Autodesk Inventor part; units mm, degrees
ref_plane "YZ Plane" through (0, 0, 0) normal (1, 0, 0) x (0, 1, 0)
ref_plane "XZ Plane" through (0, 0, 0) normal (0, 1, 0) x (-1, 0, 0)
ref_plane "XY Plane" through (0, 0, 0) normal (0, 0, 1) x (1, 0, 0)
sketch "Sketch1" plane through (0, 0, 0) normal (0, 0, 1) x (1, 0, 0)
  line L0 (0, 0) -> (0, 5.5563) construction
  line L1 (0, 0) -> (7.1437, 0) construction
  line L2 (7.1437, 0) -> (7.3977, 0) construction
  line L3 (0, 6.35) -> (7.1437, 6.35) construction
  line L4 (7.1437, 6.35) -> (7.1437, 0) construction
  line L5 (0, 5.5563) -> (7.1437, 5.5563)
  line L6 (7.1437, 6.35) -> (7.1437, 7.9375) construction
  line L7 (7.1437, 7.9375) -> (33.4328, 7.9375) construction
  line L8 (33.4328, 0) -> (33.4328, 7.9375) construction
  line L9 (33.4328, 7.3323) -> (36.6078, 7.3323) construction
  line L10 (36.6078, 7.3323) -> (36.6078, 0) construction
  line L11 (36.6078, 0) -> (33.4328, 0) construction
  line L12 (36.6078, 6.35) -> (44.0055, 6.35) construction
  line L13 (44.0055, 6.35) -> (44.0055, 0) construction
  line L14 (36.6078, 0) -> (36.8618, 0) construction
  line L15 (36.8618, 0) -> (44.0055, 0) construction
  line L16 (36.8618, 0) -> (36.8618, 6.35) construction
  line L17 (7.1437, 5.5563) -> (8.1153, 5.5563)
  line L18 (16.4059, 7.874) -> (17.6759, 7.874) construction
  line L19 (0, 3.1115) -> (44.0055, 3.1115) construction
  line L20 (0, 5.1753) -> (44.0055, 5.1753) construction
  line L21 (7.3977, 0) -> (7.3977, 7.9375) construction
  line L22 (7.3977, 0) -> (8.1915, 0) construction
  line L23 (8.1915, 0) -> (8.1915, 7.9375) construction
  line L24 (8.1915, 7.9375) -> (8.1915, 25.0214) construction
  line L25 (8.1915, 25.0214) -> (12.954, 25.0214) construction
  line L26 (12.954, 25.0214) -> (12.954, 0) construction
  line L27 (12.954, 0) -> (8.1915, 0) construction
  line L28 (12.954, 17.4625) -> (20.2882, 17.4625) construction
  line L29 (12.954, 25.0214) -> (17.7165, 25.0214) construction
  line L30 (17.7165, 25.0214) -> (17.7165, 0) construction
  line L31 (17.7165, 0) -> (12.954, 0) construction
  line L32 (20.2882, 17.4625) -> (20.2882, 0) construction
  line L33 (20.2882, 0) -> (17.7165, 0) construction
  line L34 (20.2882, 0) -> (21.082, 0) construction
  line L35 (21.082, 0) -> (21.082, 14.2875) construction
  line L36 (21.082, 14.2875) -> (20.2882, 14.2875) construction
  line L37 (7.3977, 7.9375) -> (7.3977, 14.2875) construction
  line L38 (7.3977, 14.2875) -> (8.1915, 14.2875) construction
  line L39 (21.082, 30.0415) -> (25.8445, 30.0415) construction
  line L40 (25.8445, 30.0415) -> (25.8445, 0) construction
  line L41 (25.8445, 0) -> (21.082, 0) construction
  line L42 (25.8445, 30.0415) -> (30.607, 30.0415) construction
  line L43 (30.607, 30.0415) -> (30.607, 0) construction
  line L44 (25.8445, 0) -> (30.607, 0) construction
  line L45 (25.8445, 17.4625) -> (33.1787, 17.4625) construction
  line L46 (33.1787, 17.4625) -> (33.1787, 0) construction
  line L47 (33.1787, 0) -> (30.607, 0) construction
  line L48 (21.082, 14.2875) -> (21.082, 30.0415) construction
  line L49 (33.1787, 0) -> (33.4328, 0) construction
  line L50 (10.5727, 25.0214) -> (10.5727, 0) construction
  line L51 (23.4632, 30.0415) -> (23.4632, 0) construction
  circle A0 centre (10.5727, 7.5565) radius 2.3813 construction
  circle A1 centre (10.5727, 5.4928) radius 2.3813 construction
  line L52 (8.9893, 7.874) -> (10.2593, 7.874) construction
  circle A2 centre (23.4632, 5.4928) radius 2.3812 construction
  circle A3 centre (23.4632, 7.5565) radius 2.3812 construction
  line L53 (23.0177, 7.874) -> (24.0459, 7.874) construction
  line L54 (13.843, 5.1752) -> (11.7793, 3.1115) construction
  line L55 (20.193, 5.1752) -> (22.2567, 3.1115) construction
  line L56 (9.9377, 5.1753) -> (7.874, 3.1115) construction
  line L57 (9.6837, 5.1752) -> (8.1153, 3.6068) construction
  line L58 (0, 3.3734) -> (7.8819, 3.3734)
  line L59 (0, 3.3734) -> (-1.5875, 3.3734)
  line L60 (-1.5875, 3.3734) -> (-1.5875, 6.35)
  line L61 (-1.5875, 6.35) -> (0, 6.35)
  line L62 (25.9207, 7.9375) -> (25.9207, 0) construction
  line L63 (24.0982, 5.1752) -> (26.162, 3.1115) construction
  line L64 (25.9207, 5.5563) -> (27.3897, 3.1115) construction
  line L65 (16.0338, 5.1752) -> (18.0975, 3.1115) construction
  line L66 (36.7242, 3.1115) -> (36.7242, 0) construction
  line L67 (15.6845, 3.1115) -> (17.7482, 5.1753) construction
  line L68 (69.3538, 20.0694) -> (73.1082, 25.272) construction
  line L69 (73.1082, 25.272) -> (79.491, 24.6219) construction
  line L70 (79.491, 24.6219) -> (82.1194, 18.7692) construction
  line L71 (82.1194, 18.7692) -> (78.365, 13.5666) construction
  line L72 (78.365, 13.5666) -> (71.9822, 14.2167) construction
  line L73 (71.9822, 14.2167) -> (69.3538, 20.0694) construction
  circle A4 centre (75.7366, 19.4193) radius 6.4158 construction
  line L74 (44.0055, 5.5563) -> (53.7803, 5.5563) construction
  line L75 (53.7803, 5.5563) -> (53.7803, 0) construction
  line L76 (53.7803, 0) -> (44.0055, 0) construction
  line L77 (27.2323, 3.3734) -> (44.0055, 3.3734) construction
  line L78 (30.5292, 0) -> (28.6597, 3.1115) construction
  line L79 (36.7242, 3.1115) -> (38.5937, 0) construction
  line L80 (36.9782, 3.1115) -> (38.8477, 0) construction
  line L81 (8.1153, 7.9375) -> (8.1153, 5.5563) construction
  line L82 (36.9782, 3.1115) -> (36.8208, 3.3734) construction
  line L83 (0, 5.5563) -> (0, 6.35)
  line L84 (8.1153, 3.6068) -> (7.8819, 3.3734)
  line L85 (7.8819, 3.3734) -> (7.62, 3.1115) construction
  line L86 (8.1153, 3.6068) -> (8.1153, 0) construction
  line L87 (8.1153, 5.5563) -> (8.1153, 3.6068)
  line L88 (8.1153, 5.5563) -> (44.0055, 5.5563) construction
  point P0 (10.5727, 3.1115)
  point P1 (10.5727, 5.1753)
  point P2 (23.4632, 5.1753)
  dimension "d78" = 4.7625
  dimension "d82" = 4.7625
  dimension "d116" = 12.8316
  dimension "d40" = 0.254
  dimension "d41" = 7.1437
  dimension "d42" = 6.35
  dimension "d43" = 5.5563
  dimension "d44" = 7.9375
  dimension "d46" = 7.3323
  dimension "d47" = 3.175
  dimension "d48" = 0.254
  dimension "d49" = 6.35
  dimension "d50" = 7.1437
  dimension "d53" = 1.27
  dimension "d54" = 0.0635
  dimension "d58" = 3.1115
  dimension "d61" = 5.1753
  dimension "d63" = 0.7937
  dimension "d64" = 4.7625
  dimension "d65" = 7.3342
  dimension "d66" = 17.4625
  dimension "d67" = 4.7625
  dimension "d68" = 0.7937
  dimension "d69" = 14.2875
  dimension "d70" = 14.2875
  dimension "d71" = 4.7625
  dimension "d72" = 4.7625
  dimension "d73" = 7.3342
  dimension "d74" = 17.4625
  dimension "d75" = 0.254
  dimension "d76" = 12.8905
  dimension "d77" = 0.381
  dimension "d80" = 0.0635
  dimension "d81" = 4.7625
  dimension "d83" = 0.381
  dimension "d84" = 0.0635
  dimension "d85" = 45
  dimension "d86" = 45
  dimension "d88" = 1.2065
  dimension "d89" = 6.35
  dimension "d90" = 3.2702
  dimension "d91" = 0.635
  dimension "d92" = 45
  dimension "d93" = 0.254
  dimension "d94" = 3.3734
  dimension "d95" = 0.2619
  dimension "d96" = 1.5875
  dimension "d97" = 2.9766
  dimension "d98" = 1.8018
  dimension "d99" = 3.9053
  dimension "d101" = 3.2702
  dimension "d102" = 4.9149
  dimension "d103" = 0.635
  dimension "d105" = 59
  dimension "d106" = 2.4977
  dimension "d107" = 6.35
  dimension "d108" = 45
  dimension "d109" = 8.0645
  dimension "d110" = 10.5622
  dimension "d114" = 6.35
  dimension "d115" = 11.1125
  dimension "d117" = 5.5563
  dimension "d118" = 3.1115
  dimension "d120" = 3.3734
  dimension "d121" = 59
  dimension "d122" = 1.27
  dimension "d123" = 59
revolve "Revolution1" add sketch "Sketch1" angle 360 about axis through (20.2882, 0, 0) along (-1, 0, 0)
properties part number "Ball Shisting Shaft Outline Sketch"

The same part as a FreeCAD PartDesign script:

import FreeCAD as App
import Part
import Sketcher

V = App.Vector
Q = App.Units.Quantity

doc = App.newDocument("Part")
body = doc.addObject("PartDesign::Body", "Body")

sketch1 = body.newObject("Sketcher::SketchObject", "Sketch")
sketch1.AttachmentSupport = (doc.getObject("XY_Plane"), [""])
sketch1.MapMode = "FlatFace"
sketch1.addGeometry(Part.LineSegment(V(8.1153, 5.5563, 0), V(0, 5.5563, 0)), False)
sketch1.addGeometry(Part.LineSegment(V(0, 5.5563, 0), V(0, 6.35, 0)), False)
sketch1.addGeometry(Part.LineSegment(V(0, 6.35, 0), V(-1.5875, 6.35, 0)), False)
sketch1.addGeometry(Part.LineSegment(V(-1.5875, 6.35, 0), V(-1.5875, 3.3734, 0)), False)
sketch1.addGeometry(Part.LineSegment(V(-1.5875, 3.3734, 0), V(7.8819, 3.3734, 0)), False)
sketch1.addGeometry(Part.LineSegment(V(7.8819, 3.3734, 0), V(8.1153, 3.6068, 0)), False)
sketch1.addGeometry(Part.LineSegment(V(8.1153, 3.6068, 0), V(8.1153, 5.5563, 0)), False)
sketch1.addConstraint(Sketcher.Constraint("Coincident", 0, 2, 1, 1))
sketch1.addConstraint(Sketcher.Constraint("Coincident", 1, 2, 2, 1))
sketch1.addConstraint(Sketcher.Constraint("Coincident", 2, 2, 3, 1))
sketch1.addConstraint(Sketcher.Constraint("Coincident", 3, 2, 4, 1))
sketch1.addConstraint(Sketcher.Constraint("Coincident", 4, 2, 5, 1))
sketch1.addConstraint(Sketcher.Constraint("Coincident", 5, 2, 6, 1))
sketch1.addConstraint(Sketcher.Constraint("Coincident", 6, 2, 0, 1))
sketch1.addConstraint(Sketcher.Constraint("Horizontal", 0))
sketch1.addConstraint(Sketcher.Constraint("Vertical", 1))
sketch1.addConstraint(Sketcher.Constraint("Horizontal", 2))
sketch1.addConstraint(Sketcher.Constraint("Vertical", 3))
sketch1.addConstraint(Sketcher.Constraint("Horizontal", 4))
sketch1.addConstraint(Sketcher.Constraint("Vertical", 6))
sketch1.addConstraint(Sketcher.Constraint("PointOnObject", 0, 2, -2))
sketch1.addConstraint(Sketcher.Constraint("Angle", 5, Q("45 deg")))
sketch1.addConstraint(Sketcher.Constraint("DistanceX", 2, 2, 2, 1, Q("0.0625 in")))
sketch1.addConstraint(Sketcher.Constraint("DistanceY", 1, 1, 1, 2, Q("0.031248 in")))
sketch1.addConstraint(Sketcher.Constraint("DistanceY", -1, 1, 1, 2, Q("0.25 in")))
sketch1.addConstraint(Sketcher.Constraint("DistanceY", 3, 2, 3, 1, Q("0.1172 in")))
sketch1.addConstraint(Sketcher.Constraint("Distance", 5, Q("0.013 in")))
sketch1.addConstraint(Sketcher.Constraint("DistanceX", 0, 2, 0, 1, Q("0.3195 in")))
revolution = body.newObject("PartDesign::Revolution", "Revolution")
revolution.Profile = sketch1
revolution.ReferenceAxis = (sketch1, ["H_Axis"])
revolution.Angle = 360

doc.recompute()
